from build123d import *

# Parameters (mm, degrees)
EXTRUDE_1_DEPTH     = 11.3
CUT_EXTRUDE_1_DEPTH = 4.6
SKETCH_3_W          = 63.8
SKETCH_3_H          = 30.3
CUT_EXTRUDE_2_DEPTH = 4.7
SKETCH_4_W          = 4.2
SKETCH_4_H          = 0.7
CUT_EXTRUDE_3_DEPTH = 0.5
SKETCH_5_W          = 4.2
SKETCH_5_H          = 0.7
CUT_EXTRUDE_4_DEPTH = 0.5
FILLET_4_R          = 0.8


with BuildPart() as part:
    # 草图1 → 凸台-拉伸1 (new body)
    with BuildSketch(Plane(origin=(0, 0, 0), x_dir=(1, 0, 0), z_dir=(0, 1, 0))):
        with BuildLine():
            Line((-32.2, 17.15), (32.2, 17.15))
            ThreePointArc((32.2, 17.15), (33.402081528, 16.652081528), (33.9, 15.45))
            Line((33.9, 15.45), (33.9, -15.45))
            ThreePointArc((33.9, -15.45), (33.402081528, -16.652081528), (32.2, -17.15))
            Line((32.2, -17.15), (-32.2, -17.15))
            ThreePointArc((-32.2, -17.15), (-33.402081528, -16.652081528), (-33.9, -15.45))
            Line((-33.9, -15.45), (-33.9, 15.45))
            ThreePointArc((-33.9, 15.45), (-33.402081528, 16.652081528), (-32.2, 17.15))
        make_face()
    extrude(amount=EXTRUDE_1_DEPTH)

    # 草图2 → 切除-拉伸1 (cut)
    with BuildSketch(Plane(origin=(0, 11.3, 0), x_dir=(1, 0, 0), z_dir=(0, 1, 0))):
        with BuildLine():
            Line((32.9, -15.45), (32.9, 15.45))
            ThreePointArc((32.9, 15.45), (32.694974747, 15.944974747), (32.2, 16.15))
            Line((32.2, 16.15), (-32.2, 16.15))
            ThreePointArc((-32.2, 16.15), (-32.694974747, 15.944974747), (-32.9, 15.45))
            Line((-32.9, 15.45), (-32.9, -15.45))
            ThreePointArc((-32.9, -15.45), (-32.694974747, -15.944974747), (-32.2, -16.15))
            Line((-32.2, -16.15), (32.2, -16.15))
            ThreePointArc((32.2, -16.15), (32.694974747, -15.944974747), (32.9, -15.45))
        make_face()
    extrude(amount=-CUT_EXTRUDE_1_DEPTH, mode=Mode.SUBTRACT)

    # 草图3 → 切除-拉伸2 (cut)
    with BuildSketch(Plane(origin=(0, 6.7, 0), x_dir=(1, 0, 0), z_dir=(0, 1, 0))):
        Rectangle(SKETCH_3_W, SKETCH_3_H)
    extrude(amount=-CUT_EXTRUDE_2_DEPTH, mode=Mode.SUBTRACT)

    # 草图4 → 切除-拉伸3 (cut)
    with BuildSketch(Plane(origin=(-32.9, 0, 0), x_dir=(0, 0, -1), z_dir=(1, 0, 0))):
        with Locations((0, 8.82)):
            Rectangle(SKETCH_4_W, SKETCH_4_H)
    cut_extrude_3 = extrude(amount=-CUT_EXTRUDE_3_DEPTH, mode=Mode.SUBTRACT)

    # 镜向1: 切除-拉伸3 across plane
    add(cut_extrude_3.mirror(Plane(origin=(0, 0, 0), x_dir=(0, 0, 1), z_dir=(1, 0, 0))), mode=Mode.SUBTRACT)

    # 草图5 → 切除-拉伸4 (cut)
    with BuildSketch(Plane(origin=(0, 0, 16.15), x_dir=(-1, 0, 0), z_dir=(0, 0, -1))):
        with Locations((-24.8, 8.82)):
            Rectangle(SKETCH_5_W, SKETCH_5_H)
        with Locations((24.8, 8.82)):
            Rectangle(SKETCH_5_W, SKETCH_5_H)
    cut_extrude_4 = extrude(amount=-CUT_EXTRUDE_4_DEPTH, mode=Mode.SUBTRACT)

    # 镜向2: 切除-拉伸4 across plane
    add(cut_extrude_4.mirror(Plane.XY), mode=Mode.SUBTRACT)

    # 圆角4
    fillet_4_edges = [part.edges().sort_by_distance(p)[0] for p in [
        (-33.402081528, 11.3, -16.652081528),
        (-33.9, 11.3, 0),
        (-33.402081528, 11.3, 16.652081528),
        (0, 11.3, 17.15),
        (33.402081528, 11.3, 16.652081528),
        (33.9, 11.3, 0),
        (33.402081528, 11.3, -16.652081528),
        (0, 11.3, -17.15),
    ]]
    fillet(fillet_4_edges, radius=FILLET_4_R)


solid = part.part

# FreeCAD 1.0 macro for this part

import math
import FreeCAD as App
import Part
import Sketcher
from FreeCAD import Vector
Q = App.Units.Quantity


def edges_at(feature, points):
    """Names of the edges that pass closest to the given points."""
    edges = feature.Shape.Edges
    near = lambda p: min(range(len(edges)), key=lambda i: edges[i].distToShape(Part.Vertex(*p))[0])
    return sorted({f"Edge{near(p) + 1}" for p in points})


def add_polygon(sketch, points):
    """Adds a closed chain of lines whose ends are joined by coincident constraints."""
    first, n = sketch.GeometryCount, len(points)
    for a, b in zip(points, points[1:] + points[:1]):
        sketch.addGeometry(Part.LineSegment(App.Vector(*a, 0), App.Vector(*b, 0)), False)
    for i in range(n):
        sketch.addConstraint(Sketcher.Constraint("Coincident", first + i, 2, first + (i + 1) % n, 1))

doc = App.newDocument("Part")
body = doc.addObject("PartDesign::Body", "Body")

# Sketch on XZ plane
sketch1 = body.newObject("Sketcher::SketchObject", "Sketch")
sketch1.AttachmentSupport = (doc.getObject("XZ_Plane"), [""])
sketch1.MapMode = "FlatFace"
sketch1.addGeometry([
    Part.LineSegment(Vector(32.2, -17.15, 0), Vector(-32.2, -17.15, 0)),  # 0
    Part.ArcOfCircle(Part.Circle(Vector(-32.2, -15.45, 0), Vector(0, 0, 1), 1.7), math.radians(180), math.radians(270)),  # 1
    Part.LineSegment(Vector(-33.9, -15.45, 0), Vector(-33.9, 15.45, 0)),  # 2
    Part.ArcOfCircle(Part.Circle(Vector(-32.2, 15.45, 0), Vector(0, 0, 1), 1.7), math.radians(90), math.radians(180)),  # 3
    Part.LineSegment(Vector(-32.2, 17.15, 0), Vector(32.2, 17.15, 0)),  # 4
    Part.ArcOfCircle(Part.Circle(Vector(32.2, 15.45, 0), Vector(0, 0, 1), 1.7), math.radians(0), math.radians(90)),  # 5
    Part.LineSegment(Vector(33.9, 15.45, 0), Vector(33.9, -15.45, 0)),  # 6
    Part.ArcOfCircle(Part.Circle(Vector(32.2, -15.45, 0), Vector(0, 0, 1), 1.7), math.radians(-90), math.radians(0)),  # 7
], False)
sketch1.addConstraint([
    Sketcher.Constraint("Tangent", 0, 2, 1, 2),
    Sketcher.Constraint("Tangent", 1, 1, 2, 1),
    Sketcher.Constraint("Tangent", 2, 2, 3, 2),
    Sketcher.Constraint("Tangent", 3, 1, 4, 1),
    Sketcher.Constraint("Tangent", 4, 2, 5, 2),
    Sketcher.Constraint("Tangent", 5, 1, 6, 1),
    Sketcher.Constraint("Tangent", 6, 2, 7, 2),
    Sketcher.Constraint("Tangent", 7, 1, 0, 1),
    Sketcher.Constraint("Horizontal", 0),
    Sketcher.Constraint("Vertical", 2),
    Sketcher.Constraint("Horizontal", 4),
    Sketcher.Constraint("Vertical", 6),
    Sketcher.Constraint("Equal", 1, 3),
    Sketcher.Constraint("Equal", 3, 5),
    Sketcher.Constraint("Equal", 5, 7),
    Sketcher.Constraint("Symmetric", 1, 3, 5, 3, -1, 1),
    Sketcher.Constraint("Radius", 1, Q("1.7 mm")),
    Sketcher.Constraint("DistanceX", 0, 2, 0, 1, Q("64.4 mm")),
    Sketcher.Constraint("DistanceY", 2, 1, 2, 2, Q("30.9 mm")),
])
pad1 = body.newObject("PartDesign::Pad", "Pad")
pad1.Profile = sketch1
pad1.Length = 11.3
pad1.Reversed = True

# Sketch on XZ plane
sketch2 = body.newObject("Sketcher::SketchObject", "Sketch001")
sketch2.AttachmentSupport = (doc.getObject("XZ_Plane"), [""])
sketch2.MapMode = "FlatFace"
sketch2.AttachmentOffset = App.Placement(Vector(0, 0, -11.3), App.Rotation())
sketch2.addGeometry([
    Part.LineSegment(Vector(32.9, 15.45, 0), Vector(32.9, -15.45, 0)),  # 0
    Part.ArcOfCircle(Part.Circle(Vector(32.2, -15.45, 0), Vector(0, 0, 1), 0.7), math.radians(-90), math.radians(0)),  # 1
    Part.LineSegment(Vector(32.2, -16.15, 0), Vector(-32.2, -16.15, 0)),  # 2
    Part.ArcOfCircle(Part.Circle(Vector(-32.2, -15.45, 0), Vector(0, 0, 1), 0.7), math.radians(180), math.radians(270)),  # 3
    Part.LineSegment(Vector(-32.9, -15.45, 0), Vector(-32.9, 15.45, 0)),  # 4
    Part.ArcOfCircle(Part.Circle(Vector(-32.2, 15.45, 0), Vector(0, 0, 1), 0.7), math.radians(90), math.radians(180)),  # 5
    Part.LineSegment(Vector(-32.2, 16.15, 0), Vector(32.2, 16.15, 0)),  # 6
    Part.ArcOfCircle(Part.Circle(Vector(32.2, 15.45, 0), Vector(0, 0, 1), 0.7), math.radians(0), math.radians(90)),  # 7
], False)
sketch2.addConstraint([
    Sketcher.Constraint("Tangent", 0, 2, 1, 2),
    Sketcher.Constraint("Tangent", 1, 1, 2, 1),
    Sketcher.Constraint("Tangent", 2, 2, 3, 2),
    Sketcher.Constraint("Tangent", 3, 1, 4, 1),
    Sketcher.Constraint("Tangent", 4, 2, 5, 2),
    Sketcher.Constraint("Tangent", 5, 1, 6, 1),
    Sketcher.Constraint("Tangent", 6, 2, 7, 2),
    Sketcher.Constraint("Tangent", 7, 1, 0, 1),
    Sketcher.Constraint("Vertical", 0),
    Sketcher.Constraint("Horizontal", 2),
    Sketcher.Constraint("Vertical", 4),
    Sketcher.Constraint("Horizontal", 6),
    Sketcher.Constraint("Equal", 1, 3),
    Sketcher.Constraint("Equal", 3, 5),
    Sketcher.Constraint("Equal", 5, 7),
    Sketcher.Constraint("Symmetric", 1, 3, 5, 3, -1, 1),
    Sketcher.Constraint("Radius", 1, Q("0.7 mm")),
    Sketcher.Constraint("DistanceX", 2, 2, 2, 1, Q("64.4 mm")),
    Sketcher.Constraint("DistanceY", 0, 2, 0, 1, Q("30.9 mm")),
])
pocket1 = body.newObject("PartDesign::Pocket", "Pocket")
pocket1.Profile = sketch2
pocket1.Length = 4.6
pocket1.Reversed = True

# Sketch on XZ plane
sketch3 = body.newObject("Sketcher::SketchObject", "Sketch002")
sketch3.AttachmentSupport = (doc.getObject("XZ_Plane"), [""])
sketch3.MapMode = "FlatFace"
sketch3.AttachmentOffset = App.Placement(Vector(0, 0, -6.7), App.Rotation())
add_polygon(sketch3, [(-31.9, -15.15), (-31.9, 15.15), (31.9, 15.15), (31.9, -15.15)])  # lines 0-3
sketch3.addConstraint([
    Sketcher.Constraint("Vertical", 0),
    Sketcher.Constraint("Horizontal", 1),
    Sketcher.Constraint("Vertical", 2),
    Sketcher.Constraint("Horizontal", 3),
    Sketcher.Constraint("Symmetric", 0, 2, 2, 2, -1, 1),
    Sketcher.Constraint("DistanceX", 1, 1, 1, 2, Q("63.8 mm")),
    Sketcher.Constraint("DistanceY", 0, 1, 0, 2, Q("30.3 mm")),
])
pocket2 = body.newObject("PartDesign::Pocket", "Pocket001")
pocket2.Profile = sketch3
pocket2.Length = 4.7
pocket2.Reversed = True

# Sketch on YZ plane
sketch4 = body.newObject("Sketcher::SketchObject", "Sketch003")
sketch4.AttachmentSupport = (doc.getObject("YZ_Plane"), [""])
sketch4.MapMode = "FlatFace"
sketch4.AttachmentOffset = App.Placement(Vector(0, 0, -32.9), App.Rotation())
add_polygon(sketch4, [(9.17, 2.1), (8.47, 2.1), (8.47, -2.1), (9.17, -2.1)])  # lines 0-3
sketch4.addConstraint([
    Sketcher.Constraint("Horizontal", 0),
    Sketcher.Constraint("Vertical", 1),
    Sketcher.Constraint("Horizontal", 2),
    Sketcher.Constraint("Vertical", 3),
    Sketcher.Constraint("DistanceX", 0, 2, 0, 1, Q("0.7 mm")),
    Sketcher.Constraint("DistanceY", 1, 2, 1, 1, Q("4.2 mm")),
    Sketcher.Constraint("DistanceY", -1, 1, 0, 2, Q("2.1 mm")),
    Sketcher.Constraint("DistanceX", -1, 1, 0, 2, Q("8.47 mm")),
])
pocket3 = body.newObject("PartDesign::Pocket", "Pocket002")
pocket3.Profile = sketch4
pocket3.Length = 0.5
doc.recompute()

mirrored = body.newObject("PartDesign::Mirrored", "Mirrored")
mirrored.Originals = [pocket3]
mirrored.MirrorPlane = (doc.getObject("YZ_Plane"), [""])
body.Tip = mirrored

# Sketch on XY plane
sketch5 = body.newObject("Sketcher::SketchObject", "Sketch004")
sketch5.AttachmentSupport = (doc.getObject("XY_Plane"), [""])
sketch5.MapMode = "FlatFace"
sketch5.AttachmentOffset = App.Placement(Vector(0, 0, 16.15), App.Rotation())
add_polygon(sketch5, [(26.9, 9.17), (26.9, 8.47), (22.7, 8.47), (22.7, 9.17)])  # lines 0-3
add_polygon(sketch5, [(-22.7, 9.17), (-22.7, 8.47), (-26.9, 8.47), (-26.9, 9.17)])  # lines 4-7
sketch5.addConstraint([
    Sketcher.Constraint("Vertical", 0),
    Sketcher.Constraint("Horizontal", 1),
    Sketcher.Constraint("Vertical", 2),
    Sketcher.Constraint("Horizontal", 3),
    Sketcher.Constraint("Vertical", 4),
    Sketcher.Constraint("Horizontal", 5),
    Sketcher.Constraint("Vertical", 6),
    Sketcher.Constraint("Horizontal", 7),
    Sketcher.Constraint("Symmetric", 1, 2, 4, 2, -2),
    Sketcher.Constraint("Symmetric", 3, 2, 6, 2, -2),
    Sketcher.Constraint("DistanceX", 1, 2, 1, 1, Q("4.2 mm")),
    Sketcher.Constraint("DistanceY", 0, 2, 0, 1, Q("0.7 mm")),
    Sketcher.Constraint("DistanceX", -1, 1, 0, 2, Q("26.9 mm")),
    Sketcher.Constraint("DistanceY", -1, 1, 0, 2, Q("8.47 mm")),
])
pocket4 = body.newObject("PartDesign::Pocket", "Pocket003")
pocket4.Profile = sketch5
pocket4.Length = 0.5
pocket4.Reversed = True
doc.recompute()

mirrored2 = body.newObject("PartDesign::Mirrored", "Mirrored001")
mirrored2.Originals = [pocket4]
mirrored2.MirrorPlane = (doc.getObject("XY_Plane"), [""])
body.Tip = mirrored2
doc.recompute()

fillet = body.newObject("PartDesign::Fillet", "Fillet")
fillet.Base = (mirrored2, edges_at(mirrored2, [
    (-33.402, 11.3, -16.652),
    (-33.9, 11.3, 0),
    (-33.402, 11.3, 16.652),
    (0, 11.3, 17.15),
    (33.402, 11.3, 16.652),
    (33.9, 11.3, 0),
    (33.402, 11.3, -16.652),
    (0, 11.3, -17.15),
]))
fillet.Radius = 0.8

doc.recompute()
